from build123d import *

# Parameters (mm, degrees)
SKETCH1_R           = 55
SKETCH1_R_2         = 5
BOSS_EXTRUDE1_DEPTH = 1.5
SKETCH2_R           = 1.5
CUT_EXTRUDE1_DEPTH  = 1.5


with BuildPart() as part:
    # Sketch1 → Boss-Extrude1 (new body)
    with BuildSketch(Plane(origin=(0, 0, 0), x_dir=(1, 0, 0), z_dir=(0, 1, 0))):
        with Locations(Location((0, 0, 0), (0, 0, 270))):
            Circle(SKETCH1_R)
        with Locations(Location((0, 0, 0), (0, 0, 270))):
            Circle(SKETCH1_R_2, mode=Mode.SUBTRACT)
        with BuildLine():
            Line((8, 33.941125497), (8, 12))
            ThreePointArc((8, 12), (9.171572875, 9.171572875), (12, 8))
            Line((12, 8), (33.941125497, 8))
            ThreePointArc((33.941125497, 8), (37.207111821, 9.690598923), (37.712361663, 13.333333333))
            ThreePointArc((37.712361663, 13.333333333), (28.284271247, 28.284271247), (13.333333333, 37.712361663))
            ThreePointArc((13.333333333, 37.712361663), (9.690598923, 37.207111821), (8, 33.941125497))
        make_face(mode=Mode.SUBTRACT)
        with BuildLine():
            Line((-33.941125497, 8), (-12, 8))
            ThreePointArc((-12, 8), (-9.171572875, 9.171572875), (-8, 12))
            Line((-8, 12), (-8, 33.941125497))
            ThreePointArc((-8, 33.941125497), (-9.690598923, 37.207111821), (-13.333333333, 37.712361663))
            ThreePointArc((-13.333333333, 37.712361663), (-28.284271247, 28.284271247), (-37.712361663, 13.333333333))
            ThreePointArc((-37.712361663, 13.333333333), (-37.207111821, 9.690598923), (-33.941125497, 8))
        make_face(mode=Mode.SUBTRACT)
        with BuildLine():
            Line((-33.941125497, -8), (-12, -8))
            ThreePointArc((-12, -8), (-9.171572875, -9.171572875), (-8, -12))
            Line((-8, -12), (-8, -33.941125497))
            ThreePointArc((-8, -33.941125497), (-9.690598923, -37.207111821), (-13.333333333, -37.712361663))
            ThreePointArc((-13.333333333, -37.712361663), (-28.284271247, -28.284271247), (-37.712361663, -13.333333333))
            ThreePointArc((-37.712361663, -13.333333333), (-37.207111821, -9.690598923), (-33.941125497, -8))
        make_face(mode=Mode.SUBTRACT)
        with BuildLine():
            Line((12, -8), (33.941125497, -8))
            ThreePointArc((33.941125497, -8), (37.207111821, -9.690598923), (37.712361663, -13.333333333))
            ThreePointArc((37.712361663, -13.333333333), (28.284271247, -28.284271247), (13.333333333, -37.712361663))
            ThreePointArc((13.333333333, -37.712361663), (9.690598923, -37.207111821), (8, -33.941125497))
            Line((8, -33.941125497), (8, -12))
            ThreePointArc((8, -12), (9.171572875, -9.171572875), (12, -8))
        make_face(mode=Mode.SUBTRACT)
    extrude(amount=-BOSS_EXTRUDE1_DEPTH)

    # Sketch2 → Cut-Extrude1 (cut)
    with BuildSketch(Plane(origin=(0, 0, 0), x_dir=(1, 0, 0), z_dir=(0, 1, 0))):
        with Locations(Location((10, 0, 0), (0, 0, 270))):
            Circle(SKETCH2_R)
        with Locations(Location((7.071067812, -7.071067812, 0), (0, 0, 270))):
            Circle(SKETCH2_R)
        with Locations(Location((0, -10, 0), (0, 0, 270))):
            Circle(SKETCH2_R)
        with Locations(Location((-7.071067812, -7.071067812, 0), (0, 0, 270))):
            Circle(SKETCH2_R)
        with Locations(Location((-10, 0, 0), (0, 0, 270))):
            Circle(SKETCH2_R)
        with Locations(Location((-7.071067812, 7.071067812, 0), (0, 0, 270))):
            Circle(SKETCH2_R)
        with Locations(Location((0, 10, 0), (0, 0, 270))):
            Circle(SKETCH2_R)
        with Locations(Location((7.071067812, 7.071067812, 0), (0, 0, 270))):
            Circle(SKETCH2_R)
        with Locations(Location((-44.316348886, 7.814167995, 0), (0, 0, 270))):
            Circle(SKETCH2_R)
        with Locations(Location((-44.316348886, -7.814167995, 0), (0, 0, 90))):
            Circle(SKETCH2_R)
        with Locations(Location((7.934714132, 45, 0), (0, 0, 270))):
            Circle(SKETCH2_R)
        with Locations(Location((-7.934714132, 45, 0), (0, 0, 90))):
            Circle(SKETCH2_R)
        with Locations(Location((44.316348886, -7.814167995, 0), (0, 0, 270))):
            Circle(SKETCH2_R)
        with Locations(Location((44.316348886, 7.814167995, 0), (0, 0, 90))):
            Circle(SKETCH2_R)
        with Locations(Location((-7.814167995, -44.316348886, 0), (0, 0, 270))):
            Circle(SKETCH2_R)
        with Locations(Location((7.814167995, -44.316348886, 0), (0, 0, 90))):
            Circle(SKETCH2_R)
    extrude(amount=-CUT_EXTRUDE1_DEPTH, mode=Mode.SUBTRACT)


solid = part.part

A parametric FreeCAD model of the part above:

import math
import FreeCAD as App
import Part
import Sketcher

doc = App.newDocument("Part")
body = doc.addObject("PartDesign::Body", "Body")

# Sketch on XZ plane
sketch1 = body.newObject("Sketcher::SketchObject", "Sketch")
sketch1.AttachmentSupport = (doc.getObject("XZ_Plane"), [""])
sketch1.MapMode = "FlatFace"
sketch1.addGeometry(Part.Circle(App.Vector(0, 0, 0), App.Vector(0, 0, 1), 55), False)
sketch1.addGeometry(Part.LineSegment(App.Vector(-12, -8, 0), App.Vector(-33.9, -8, 0)), False)
sketch1.addGeometry(Part.ArcOfCircle(Part.Circle(App.Vector(-33.9, -12, 0), App.Vector(0, 0, 1), 4), math.radians(90), math.radians(199)), False)
sketch1.addGeometry(Part.ArcOfCircle(Part.Circle(App.Vector(0, 0, 0), App.Vector(0, 0, 1), 40), math.radians(-161), math.radians(-109)), False)
sketch1.addGeometry(Part.ArcOfCircle(Part.Circle(App.Vector(-12, -33.9, 0), App.Vector(0, 0, 1), 4), math.radians(-109), math.radians(0)), False)
sketch1.addGeometry(Part.LineSegment(App.Vector(-8, -33.9, 0), App.Vector(-8, -12, 0)), False)
sketch1.addGeometry(Part.ArcOfCircle(Part.Circle(App.Vector(-12, -12, 0), App.Vector(0, 0, 1), 4), math.radians(0), math.radians(90)), False)
sketch1.addGeometry(Part.ArcOfCircle(Part.Circle(App.Vector(-33.9, 12, 0), App.Vector(0, 0, 1), 4), math.radians(161), math.radians(270)), False)
sketch1.addGeometry(Part.LineSegment(App.Vector(-33.9, 8, 0), App.Vector(-12, 8, 0)), False)
sketch1.addGeometry(Part.ArcOfCircle(Part.Circle(App.Vector(-12, 12, 0), App.Vector(0, 0, 1), 4), math.radians(-90), math.radians(0)), False)
sketch1.addGeometry(Part.LineSegment(App.Vector(-8, 12, 0), App.Vector(-8, 33.9, 0)), False)
sketch1.addGeometry(Part.ArcOfCircle(Part.Circle(App.Vector(-12, 33.9, 0), App.Vector(0, 0, 1), 4), math.radians(0), math.radians(109)), False)
sketch1.addGeometry(Part.ArcOfCircle(Part.Circle(App.Vector(0, 0, 0), App.Vector(0, 0, 1), 40), math.radians(109), math.radians(161)), False)
sketch1.addGeometry(Part.LineSegment(App.Vector(8, -12, 0), App.Vector(8, -33.9, 0)), False)
sketch1.addGeometry(Part.ArcOfCircle(Part.Circle(App.Vector(12, -33.9, 0), App.Vector(0, 0, 1), 4), math.radians(180), math.radians(289)), False)
sketch1.addGeometry(Part.ArcOfCircle(Part.Circle(App.Vector(0, 0, 0), App.Vector(0, 0, 1), 40), math.radians(-71), math.radians(-19)), False)
sketch1.addGeometry(Part.ArcOfCircle(Part.Circle(App.Vector(33.9, -12, 0), App.Vector(0, 0, 1), 4), math.radians(-19), math.radians(90)), False)
sketch1.addGeometry(Part.LineSegment(App.Vector(33.9, -8, 0), App.Vector(12, -8, 0)), False)
sketch1.addGeometry(Part.ArcOfCircle(Part.Circle(App.Vector(12, -12, 0), App.Vector(0, 0, 1), 4), math.radians(90), math.radians(180)), False)
sketch1.addGeometry(Part.Circle(App.Vector(0, 0, 0), App.Vector(0, 0, 1), 5), False)
sketch1.addGeometry(Part.ArcOfCircle(Part.Circle(App.Vector(12, 12, 0), App.Vector(0, 0, 1), 4), math.radians(180), math.radians(270)), False)
sketch1.addGeometry(Part.LineSegment(App.Vector(12, 8, 0), App.Vector(33.9, 8, 0)), False)
sketch1.addGeometry(Part.ArcOfCircle(Part.Circle(App.Vector(33.9, 12, 0), App.Vector(0, 0, 1), 4), math.radians(-90), math.radians(19)), False)
sketch1.addGeometry(Part.ArcOfCircle(Part.Circle(App.Vector(0, 0, 0), App.Vector(0, 0, 1), 40), math.radians(19), math.radians(71)), False)
sketch1.addGeometry(Part.ArcOfCircle(Part.Circle(App.Vector(12, 33.9, 0), App.Vector(0, 0, 1), 4), math.radians(71), math.radians(180)), False)
sketch1.addGeometry(Part.LineSegment(App.Vector(8, 33.9, 0), App.Vector(8, 12, 0)), False)
sketch1.addConstraint(Sketcher.Constraint("Tangent", 1, 2, 2, 1))
sketch1.addConstraint(Sketcher.Constraint("Tangent", 2, 2, 3, 1))
sketch1.addConstraint(Sketcher.Constraint("Tangent", 3, 2, 4, 1))
sketch1.addConstraint(Sketcher.Constraint("Tangent", 4, 2, 5, 1))
sketch1.addConstraint(Sketcher.Constraint("Tangent", 5, 2, 6, 1))
sketch1.addConstraint(Sketcher.Constraint("Tangent", 6, 2, 1, 1))
sketch1.addConstraint(Sketcher.Constraint("Tangent", 7, 2, 8, 1))
sketch1.addConstraint(Sketcher.Constraint("Tangent", 8, 2, 9, 1))
sketch1.addConstraint(Sketcher.Constraint("Tangent", 9, 2, 10, 1))
sketch1.addConstraint(Sketcher.Constraint("Tangent", 10, 2, 11, 1))
sketch1.addConstraint(Sketcher.Constraint("Tangent", 11, 2, 12, 1))
sketch1.addConstraint(Sketcher.Constraint("Tangent", 12, 2, 7, 1))
sketch1.addConstraint(Sketcher.Constraint("Tangent", 13, 2, 14, 1))
sketch1.addConstraint(Sketcher.Constraint("Tangent", 14, 2, 15, 1))
sketch1.addConstraint(Sketcher.Constraint("Tangent", 15, 2, 16, 1))
sketch1.addConstraint(Sketcher.Constraint("Tangent", 16, 2, 17, 1))
sketch1.addConstraint(Sketcher.Constraint("Tangent", 17, 2, 18, 1))
sketch1.addConstraint(Sketcher.Constraint("Tangent", 18, 2, 13, 1))
sketch1.addConstraint(Sketcher.Constraint("Tangent", 20, 2, 21, 1))
sketch1.addConstraint(Sketcher.Constraint("Tangent", 21, 2, 22, 1))
sketch1.addConstraint(Sketcher.Constraint("Tangent", 22, 2, 23, 1))
sketch1.addConstraint(Sketcher.Constraint("Tangent", 23, 2, 24, 1))
sketch1.addConstraint(Sketcher.Constraint("Tangent", 24, 2, 25, 1))
sketch1.addConstraint(Sketcher.Constraint("Tangent", 25, 2, 20, 1))
sketch1.addConstraint(Sketcher.Constraint("Horizontal", 1))
sketch1.addConstraint(Sketcher.Constraint("Vertical", 5))
sketch1.addConstraint(Sketcher.Constraint("Horizontal", 8))
sketch1.addConstraint(Sketcher.Constraint("Vertical", 10))
sketch1.addConstraint(Sketcher.Constraint("Vertical", 13))
sketch1.addConstraint(Sketcher.Constraint("Horizontal", 17))
sketch1.addConstraint(Sketcher.Constraint("Horizontal", 21))
sketch1.addConstraint(Sketcher.Constraint("Vertical", 25))
sketch1.addConstraint(Sketcher.Constraint("Coincident", 0, 3, -1, 1))
sketch1.addConstraint(Sketcher.Constraint("Coincident", 3, 3, -1, 1))
sketch1.addConstraint(Sketcher.Constraint("Coincident", 12, 3, -1, 1))
sketch1.addConstraint(Sketcher.Constraint("Coincident", 15, 3, -1, 1))
sketch1.addConstraint(Sketcher.Constraint("Coincident", 19, 3, -1, 1))
sketch1.addConstraint(Sketcher.Constraint("Coincident", 23, 3, -1, 1))
sketch1.addConstraint(Sketcher.Constraint("Equal", 2, 4))
sketch1.addConstraint(Sketcher.Constraint("Equal", 4, 6))
sketch1.addConstraint(Sketcher.Constraint("Equal", 6, 7))
sketch1.addConstraint(Sketcher.Constraint("Equal", 7, 9))
sketch1.addConstraint(Sketcher.Constraint("Equal", 9, 11))
sketch1.addConstraint(Sketcher.Constraint("Equal", 3, 12))
sketch1.addConstraint(Sketcher.Constraint("Equal", 11, 14))
sketch1.addConstraint(Sketcher.Constraint("Equal", 12, 15))
sketch1.addConstraint(Sketcher.Constraint("Equal", 14, 16))
sketch1.addConstraint(Sketcher.Constraint("Equal", 16, 18))
sketch1.addConstraint(Sketcher.Constraint("Equal", 18, 20))
sketch1.addConstraint(Sketcher.Constraint("Equal", 20, 22))
sketch1.addConstraint(Sketcher.Constraint("Equal", 15, 23))
sketch1.addConstraint(Sketcher.Constraint("Equal", 22, 24))
sketch1.addConstraint(Sketcher.Constraint("Symmetric", 9, 3, 18, 3, -1, 1))
sketch1.addConstraint(Sketcher.Constraint("Symmetric", 6, 3, 20, 3, -1, 1))
sketch1.addConstraint(Sketcher.Constraint("Symmetric", 6, 3, 18, 3, -2))
sketch1.addConstraint(Sketcher.Constraint("Equal", 21, 5))
sketch1.addConstraint(Sketcher.Constraint("Diameter", 0, 110.0))
sketch1.addConstraint(Sketcher.Constraint("Diameter", 19, 10.0))
sketch1.addConstraint(Sketcher.Constraint("Radius", 2, 4.0))
sketch1.addConstraint(Sketcher.Constraint("Radius", 3, 40.0))
sketch1.addConstraint(Sketcher.Constraint("DistanceY", 2, 3, -1, 1, 12.0))
pad1 = body.newObject("PartDesign::Pad", "Pad")
pad1.Profile = sketch1
pad1.Length = 1.5

# Sketch on XZ plane
sketch2 = body.newObject("Sketcher::SketchObject", "Sketch001")
sketch2.AttachmentSupport = (doc.getObject("XZ_Plane"), [""])
sketch2.MapMode = "FlatFace"
sketch2.addGeometry(Part.Circle(App.Vector(10, 0, 0), App.Vector(0, 0, 1), 1.5), False)
sketch2.addGeometry(Part.Circle(App.Vector(7.1, 7.1, 0), App.Vector(0, 0, 1), 1.5), False)
sketch2.addGeometry(Part.Circle(App.Vector(0, 10, 0), App.Vector(0, 0, 1), 1.5), False)
sketch2.addGeometry(Part.Circle(App.Vector(-7.1, 7.1, 0), App.Vector(0, 0, 1), 1.5), False)
sketch2.addGeometry(Part.Circle(App.Vector(-10, 0, 0), App.Vector(0, 0, 1), 1.5), False)
sketch2.addGeometry(Part.Circle(App.Vector(-7.1, -7.1, 0), App.Vector(0, 0, 1), 1.5), False)
sketch2.addGeometry(Part.Circle(App.Vector(0, -10, 0), App.Vector(0, 0, 1), 1.5), False)
sketch2.addGeometry(Part.Circle(App.Vector(7.1, -7.1, 0), App.Vector(0, 0, 1), 1.5), False)
sketch2.addGeometry(Part.Circle(App.Vector(-44.3, -7.8, 0), App.Vector(0, 0, 1), 1.5), False)
sketch2.addGeometry(Part.Circle(App.Vector(-44.3, 7.8, 0), App.Vector(0, 0, 1), 1.5), False)
sketch2.addGeometry(Part.Circle(App.Vector(7.9, -45, 0), App.Vector(0, 0, 1), 1.5), False)
sketch2.addGeometry(Part.Circle(App.Vector(-7.9, -45, 0), App.Vector(0, 0, 1), 1.5), False)
sketch2.addGeometry(Part.Circle(App.Vector(44.3, 7.8, 0), App.Vector(0, 0, 1), 1.5), False)
sketch2.addGeometry(Part.Circle(App.Vector(44.3, -7.8, 0), App.Vector(0, 0, 1), 1.5), False)
sketch2.addGeometry(Part.Circle(App.Vector(-7.8, 44.3, 0), App.Vector(0, 0, 1), 1.5), False)
sketch2.addGeometry(Part.Circle(App.Vector(7.8, 44.3, 0), App.Vector(0, 0, 1), 1.5), False)
sketch2.addConstraint(Sketcher.Constraint("Equal", 0, 1))
sketch2.addConstraint(Sketcher.Constraint("Equal", 1, 2))
sketch2.addConstraint(Sketcher.Constraint("Equal", 2, 3))
sketch2.addConstraint(Sketcher.Constraint("Equal", 3, 4))
sketch2.addConstraint(Sketcher.Constraint("Equal", 4, 5))
sketch2.addConstraint(Sketcher.Constraint("Equal", 5, 6))
sketch2.addConstraint(Sketcher.Constraint("Equal", 6, 7))
sketch2.addConstraint(Sketcher.Constraint("Equal", 7, 8))
sketch2.addConstraint(Sketcher.Constraint("Equal", 8, 9))
sketch2.addConstraint(Sketcher.Constraint("Equal", 9, 10))
sketch2.addConstraint(Sketcher.Constraint("Equal", 10, 11))
sketch2.addConstraint(Sketcher.Constraint("Equal", 11, 12))
sketch2.addConstraint(Sketcher.Constraint("Equal", 12, 13))
sketch2.addConstraint(Sketcher.Constraint("Equal", 13, 14))
sketch2.addConstraint(Sketcher.Constraint("Equal", 14, 15))
sketch2.addConstraint(Sketcher.Constraint("Symmetric", 0, 3, 4, 3, -1, 1))
sketch2.addConstraint(Sketcher.Constraint("Symmetric", 1, 3, 5, 3, -1, 1))
sketch2.addConstraint(Sketcher.Constraint("Symmetric", 2, 3, 6, 3, -1, 1))
sketch2.addConstraint(Sketcher.Constraint("Symmetric", 3, 3, 7, 3, -1, 1))
sketch2.addConstraint(Sketcher.Constraint("Symmetric", 8, 3, 12, 3, -1, 1))
sketch2.addConstraint(Sketcher.Constraint("Symmetric", 9, 3, 13, 3, -1, 1))
sketch2.addConstraint(Sketcher.Constraint("Symmetric", 1, 3, 3, 3, -2))
sketch2.addConstraint(Sketcher.Constraint("Symmetric", 10, 3, 11, 3, -2))
sketch2.addConstraint(Sketcher.Constraint("Symmetric", 9, 3, 12, 3, -2))
sketch2.addConstraint(Sketcher.Constraint("Symmetric", 14, 3, 15, 3, -2))
sketch2.addConstraint(Sketcher.Constraint("PointOnObject", 0, 3, -1))
sketch2.addConstraint(Sketcher.Constraint("PointOnObject", 2, 3, -2))
sketch2.addConstraint(Sketcher.Constraint("Diameter", 0, 3.0))
sketch2.addConstraint(Sketcher.Constraint("DistanceX", -1, 1, 0, 3, 10.0))
sketch2.addConstraint(Sketcher.Constraint("DistanceY", -1, 1, 2, 3, 10.0))
sketch2.addConstraint(Sketcher.Constraint("DistanceY", 10, 3, -1, 1, 45.0))
sketch2.addConstraint(Sketcher.Constraint("DistanceY", 8, 3, 5, 3, 0.7431))
sketch2.addConstraint(Sketcher.Constraint("DistanceX", 14, 3, 3, 3, 0.7431))
sketch2.addConstraint(Sketcher.Constraint("DistanceX", 8, 3, -1, 1, 44.316349))
sketch2.addConstraint(Sketcher.Constraint("DistanceY", -1, 1, 14, 3, 44.316349))
sketch2.addConstraint(Sketcher.Constraint("DistanceX", 8, 3, 5, 3, 37.245281))
sketch2.addConstraint(Sketcher.Constraint("DistanceX", 5, 3, 10, 3, 15.005782))
sketch2.addConstraint(Sketcher.Constraint("DistanceY", 3, 3, 14, 3, 37.245281))
pocket1 = body.newObject("PartDesign::Pocket", "Pocket")
pocket1.Profile = sketch2
pocket1.Length = 1.5
pocket1.Reversed = True

doc.recompute()
